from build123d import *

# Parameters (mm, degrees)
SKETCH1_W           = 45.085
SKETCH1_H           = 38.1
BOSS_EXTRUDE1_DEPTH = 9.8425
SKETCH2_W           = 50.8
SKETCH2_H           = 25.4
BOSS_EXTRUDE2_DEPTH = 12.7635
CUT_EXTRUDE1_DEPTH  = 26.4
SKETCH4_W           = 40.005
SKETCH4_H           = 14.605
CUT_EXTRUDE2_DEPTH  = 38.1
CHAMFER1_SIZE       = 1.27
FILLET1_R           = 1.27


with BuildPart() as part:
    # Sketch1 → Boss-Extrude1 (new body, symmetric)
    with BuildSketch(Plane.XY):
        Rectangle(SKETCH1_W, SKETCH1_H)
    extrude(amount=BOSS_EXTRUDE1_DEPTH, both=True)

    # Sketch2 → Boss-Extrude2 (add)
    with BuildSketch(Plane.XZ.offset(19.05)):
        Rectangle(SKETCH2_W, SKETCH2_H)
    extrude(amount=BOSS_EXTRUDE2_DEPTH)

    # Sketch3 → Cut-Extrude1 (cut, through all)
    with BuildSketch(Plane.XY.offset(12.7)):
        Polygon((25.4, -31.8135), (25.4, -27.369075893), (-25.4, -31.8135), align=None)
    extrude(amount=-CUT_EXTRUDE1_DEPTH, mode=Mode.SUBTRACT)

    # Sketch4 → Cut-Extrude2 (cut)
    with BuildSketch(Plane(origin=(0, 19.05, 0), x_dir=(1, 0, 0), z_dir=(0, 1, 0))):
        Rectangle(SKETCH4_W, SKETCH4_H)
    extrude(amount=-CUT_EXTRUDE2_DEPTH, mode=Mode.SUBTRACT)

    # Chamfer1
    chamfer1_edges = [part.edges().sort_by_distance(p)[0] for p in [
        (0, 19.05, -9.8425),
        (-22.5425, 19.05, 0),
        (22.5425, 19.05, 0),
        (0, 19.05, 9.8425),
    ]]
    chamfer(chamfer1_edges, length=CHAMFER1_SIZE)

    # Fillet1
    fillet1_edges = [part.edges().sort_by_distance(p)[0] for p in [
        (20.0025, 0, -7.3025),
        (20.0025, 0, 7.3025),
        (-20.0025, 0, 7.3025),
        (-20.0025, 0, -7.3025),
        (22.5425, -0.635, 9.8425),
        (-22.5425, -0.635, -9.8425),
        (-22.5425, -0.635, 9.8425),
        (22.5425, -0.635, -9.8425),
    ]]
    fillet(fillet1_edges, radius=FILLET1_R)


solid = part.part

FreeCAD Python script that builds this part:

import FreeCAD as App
import Part
import Sketcher
from FreeCAD import Vector
Q = App.Units.Quantity


def edges_at(feature, points):
    """Names of the edges that pass closest to the given points."""
    edges = feature.Shape.Edges
    near = lambda p: min(range(len(edges)), key=lambda i: edges[i].distToShape(Part.Vertex(*p))[0])
    return sorted({f"Edge{near(p) + 1}" for p in points})

doc = App.newDocument("Part")
body = doc.addObject("PartDesign::Body", "Body")

# Sketch on XY plane
sketch1 = doc.addObject("Sketcher::SketchObject", "Sketch")
body.addObject(sketch1)
sketch1.AttachmentSupport = (doc.XY_Plane, [""])
sketch1.MapMode = "FlatFace"
sketch1.addGeometry(Part.LineSegment(Vector(-22.5425, 19.05, 0), Vector(-22.5425, -19.05, 0)), False)
sketch1.addGeometry(Part.LineSegment(Vector(-22.5425, -19.05, 0), Vector(22.5425, -19.05, 0)), False)
sketch1.addGeometry(Part.LineSegment(Vector(22.5425, -19.05, 0), Vector(22.5425, 19.05, 0)), False)
sketch1.addGeometry(Part.LineSegment(Vector(22.5425, 19.05, 0), Vector(-22.5425, 19.05, 0)), False)
sketch1.addConstraint(Sketcher.Constraint("Coincident", 0, 2, 1, 1))
sketch1.addConstraint(Sketcher.Constraint("Coincident", 1, 2, 2, 1))
sketch1.addConstraint(Sketcher.Constraint("Coincident", 2, 2, 3, 1))
sketch1.addConstraint(Sketcher.Constraint("Coincident", 3, 2, 0, 1))
sketch1.addConstraint(Sketcher.Constraint("Vertical", 0))
sketch1.addConstraint(Sketcher.Constraint("Horizontal", 1))
sketch1.addConstraint(Sketcher.Constraint("Vertical", 2))
sketch1.addConstraint(Sketcher.Constraint("Horizontal", 3))
sketch1.addConstraint(Sketcher.Constraint("Symmetric", 0, 2, 2, 2, -1, 1))
sketch1.addConstraint(Sketcher.Constraint("DistanceY", 0, 2, 0, 1, Q("1.5 in")))
sketch1.addConstraint(Sketcher.Constraint("DistanceX", 1, 1, 1, 2, Q("1.775 in")))
pad1 = doc.addObject("PartDesign::Pad", "Pad")
body.addObject(pad1)
pad1.Profile = sketch1
pad1.Length = Q("0.775 in")
pad1.Midplane = True

# Sketch on XZ plane
sketch2 = doc.addObject("Sketcher::SketchObject", "Sketch001")
body.addObject(sketch2)
sketch2.AttachmentSupport = (doc.XZ_Plane, [""])
sketch2.MapMode = "FlatFace"
sketch2.AttachmentOffset = App.Placement(Vector(0, 0, 0.75 * 25.4), App.Rotation())
sketch2.addGeometry(Part.LineSegment(Vector(-25.4, 12.7, 0), Vector(-25.4, -12.7, 0)), False)
sketch2.addGeometry(Part.LineSegment(Vector(-25.4, -12.7, 0), Vector(25.4, -12.7, 0)), False)
sketch2.addGeometry(Part.LineSegment(Vector(25.4, -12.7, 0), Vector(25.4, 12.7, 0)), False)
sketch2.addGeometry(Part.LineSegment(Vector(25.4, 12.7, 0), Vector(-25.4, 12.7, 0)), False)
sketch2.addConstraint(Sketcher.Constraint("Coincident", 0, 2, 1, 1))
sketch2.addConstraint(Sketcher.Constraint("Coincident", 1, 2, 2, 1))
sketch2.addConstraint(Sketcher.Constraint("Coincident", 2, 2, 3, 1))
sketch2.addConstraint(Sketcher.Constraint("Coincident", 3, 2, 0, 1))
sketch2.addConstraint(Sketcher.Constraint("Vertical", 0))
sketch2.addConstraint(Sketcher.Constraint("Horizontal", 1))
sketch2.addConstraint(Sketcher.Constraint("Vertical", 2))
sketch2.addConstraint(Sketcher.Constraint("Horizontal", 3))
sketch2.addConstraint(Sketcher.Constraint("Symmetric", 0, 2, 2, 2, -1, 1))
sketch2.addConstraint(Sketcher.Constraint("DistanceX", 1, 1, 1, 2, Q("2 in")))
sketch2.addConstraint(Sketcher.Constraint("DistanceY", 0, 2, 0, 1, Q("1 in")))
pad2 = doc.addObject("PartDesign::Pad", "Pad001")
body.addObject(pad2)
pad2.Profile = sketch2
pad2.Length = Q("0.5025 in")

# Sketch on XY plane
sketch3 = doc.addObject("Sketcher::SketchObject", "Sketch002")
body.addObject(sketch3)
sketch3.AttachmentSupport = (doc.XY_Plane, [""])
sketch3.MapMode = "FlatFace"
sketch3.AttachmentOffset = App.Placement(Vector(0, 0, 0.5 * 25.4), App.Rotation())
sketch3.addGeometry(Part.LineSegment(Vector(25.4, -31.8135, 0), Vector(25.4, -27.369076, 0)), False)
sketch3.addGeometry(Part.LineSegment(Vector(25.4, -27.369076, 0), Vector(-25.4, -31.8135, 0)), False)
sketch3.addGeometry(Part.LineSegment(Vector(-25.4, -31.8135, 0), Vector(25.4, -31.8135, 0)), False)
sketch3.addConstraint(Sketcher.Constraint("Coincident", 0, 2, 1, 1))
sketch3.addConstraint(Sketcher.Constraint("Coincident", 1, 2, 2, 1))
sketch3.addConstraint(Sketcher.Constraint("Coincident", 2, 2, 0, 1))
sketch3.addConstraint(Sketcher.Constraint("Vertical", 0))
sketch3.addConstraint(Sketcher.Constraint("Horizontal", 2))
sketch3.addConstraint(Sketcher.Constraint("DistanceX", 2, 1, 2, 2, Q("2 in")))
sketch3.addConstraint(Sketcher.Constraint("DistanceX", -1, 1, 0, 2, Q("1 in")))
sketch3.addConstraint(Sketcher.Constraint("Angle", 1, Q("-175 deg")))
sketch3.addConstraint(Sketcher.Constraint("DistanceY", 1, 2, -1, 1, Q("1.2525 in")))
pocket1 = doc.addObject("PartDesign::Pocket", "Pocket")
body.addObject(pocket1)
pocket1.Profile = sketch3
pocket1.Type = "ThroughAll"

# Sketch on XZ plane
sketch4 = doc.addObject("Sketcher::SketchObject", "Sketch003")
body.addObject(sketch4)
sketch4.AttachmentSupport = (doc.XZ_Plane, [""])
sketch4.MapMode = "FlatFace"
sketch4.AttachmentOffset = App.Placement(Vector(0, 0, -0.75 * 25.4), App.Rotation())
sketch4.addGeometry(Part.LineSegment(Vector(-20.0025, -7.3025, 0), Vector(-20.0025, 7.3025, 0)), False)
sketch4.addGeometry(Part.LineSegment(Vector(-20.0025, 7.3025, 0), Vector(20.0025, 7.3025, 0)), False)
sketch4.addGeometry(Part.LineSegment(Vector(20.0025, 7.3025, 0), Vector(20.0025, -7.3025, 0)), False)
sketch4.addGeometry(Part.LineSegment(Vector(20.0025, -7.3025, 0), Vector(-20.0025, -7.3025, 0)), False)
sketch4.addConstraint(Sketcher.Constraint("Coincident", 0, 2, 1, 1))
sketch4.addConstraint(Sketcher.Constraint("Coincident", 1, 2, 2, 1))
sketch4.addConstraint(Sketcher.Constraint("Coincident", 2, 2, 3, 1))
sketch4.addConstraint(Sketcher.Constraint("Coincident", 3, 2, 0, 1))
sketch4.addConstraint(Sketcher.Constraint("Vertical", 0))
sketch4.addConstraint(Sketcher.Constraint("Horizontal", 1))
sketch4.addConstraint(Sketcher.Constraint("Vertical", 2))
sketch4.addConstraint(Sketcher.Constraint("Horizontal", 3))
sketch4.addConstraint(Sketcher.Constraint("Symmetric", 0, 2, 2, 2, -1, 1))
sketch4.addConstraint(Sketcher.Constraint("DistanceX", 1, 1, 1, 2, Q("1.575 in")))
sketch4.addConstraint(Sketcher.Constraint("DistanceY", 0, 1, 0, 2, Q("0.575 in")))
pocket2 = doc.addObject("PartDesign::Pocket", "Pocket001")
body.addObject(pocket2)
pocket2.Profile = sketch4
pocket2.Length = Q("1.5 in")
pocket2.Reversed = True
doc.recompute()

chamfer = doc.addObject("PartDesign::Chamfer", "Chamfer")
body.addObject(chamfer)
chamfer.Base = (pocket2, edges_at(pocket2, [
    (0, 19.05, -9.842),
    (-22.543, 19.05, 0),
    (22.543, 19.05, 0),
    (0, 19.05, 9.842),
]))
chamfer.Size = Q("0.05 in")
doc.recompute()

fillet = doc.addObject("PartDesign::Fillet", "Fillet")
body.addObject(fillet)
fillet.Base = (chamfer, edges_at(chamfer, [
    (20.003, 0, -7.303),
    (20.003, 0, 7.303),
    (-20.003, 0, 7.303),
    (-20.003, 0, -7.303),
    (22.543, -0.635, 9.842),
    (-22.543, -0.635, -9.842),
    (-22.543, -0.635, 9.842),
    (22.543, -0.635, -9.842),
]))
fillet.Radius = Q("0.05 in")

doc.recompute()
